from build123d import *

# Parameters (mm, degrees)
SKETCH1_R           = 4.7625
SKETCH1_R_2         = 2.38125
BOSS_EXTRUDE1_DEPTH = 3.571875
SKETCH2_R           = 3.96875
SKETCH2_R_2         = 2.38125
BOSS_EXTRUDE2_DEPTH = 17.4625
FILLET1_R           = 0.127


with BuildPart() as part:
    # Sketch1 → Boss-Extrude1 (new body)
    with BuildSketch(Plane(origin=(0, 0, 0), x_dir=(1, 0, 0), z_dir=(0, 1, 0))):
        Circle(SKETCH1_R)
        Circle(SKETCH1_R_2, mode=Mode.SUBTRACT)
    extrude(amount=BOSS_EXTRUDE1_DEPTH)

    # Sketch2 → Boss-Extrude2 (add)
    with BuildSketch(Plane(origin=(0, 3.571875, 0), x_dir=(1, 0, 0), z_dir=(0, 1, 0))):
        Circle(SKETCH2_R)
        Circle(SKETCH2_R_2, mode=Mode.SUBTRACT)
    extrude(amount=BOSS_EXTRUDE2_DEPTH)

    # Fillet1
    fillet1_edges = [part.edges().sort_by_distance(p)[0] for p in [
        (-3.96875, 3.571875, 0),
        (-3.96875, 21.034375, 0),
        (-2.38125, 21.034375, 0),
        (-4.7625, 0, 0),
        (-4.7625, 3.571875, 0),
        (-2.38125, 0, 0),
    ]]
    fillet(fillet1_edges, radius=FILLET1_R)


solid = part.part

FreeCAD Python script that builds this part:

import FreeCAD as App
import Part
import Sketcher
Q = App.Units.Quantity


def edges_at(feature, points):
    """Names of the edges that pass closest to the given points."""
    edges = feature.Shape.Edges
    near = lambda p: min(range(len(edges)), key=lambda i: edges[i].distToShape(Part.Vertex(*p))[0])
    return sorted({f"Edge{near(p) + 1}" for p in points})

doc = App.newDocument("Part")
body = doc.addObject("PartDesign::Body", "Body")

# Sketch on XZ plane
sketch1 = doc.addObject("Sketcher::SketchObject", "Sketch")
body.addObject(sketch1)
sketch1.AttachmentSupport = (doc.XZ_Plane, [""])
sketch1.MapMode = "FlatFace"
sketch1.addGeometry([
    Part.Circle(App.Vector(0, 0, 0), App.Vector(0, 0, 1), 4.8),
    Part.Circle(App.Vector(0, 0, 0), App.Vector(0, 0, 1), 2.4),
], False)
sketch1.addConstraint([
    Sketcher.Constraint("Coincident", 0, 3, -1, 1),
    Sketcher.Constraint("Coincident", 1, 3, -1, 1),
    Sketcher.Constraint("Diameter", 0, Q("0.375 in")),
    Sketcher.Constraint("Diameter", 1, Q("0.1875 in")),
])
pad1 = doc.addObject("PartDesign::Pad", "Pad")
body.addObject(pad1)
pad1.Profile = sketch1
pad1.Length = Q("0.140625 in")
pad1.Reversed = True

# Sketch on XZ plane
sketch2 = doc.addObject("Sketcher::SketchObject", "Sketch001")
body.addObject(sketch2)
sketch2.AttachmentSupport = (doc.XZ_Plane, [""])
sketch2.MapMode = "FlatFace"
sketch2.AttachmentOffset = App.Placement(App.Vector(0, 0, -0.140625 * 25.4), App.Rotation())
sketch2.addGeometry([
    Part.Circle(App.Vector(0, 0, 0), App.Vector(0, 0, 1), 4),
    Part.Circle(App.Vector(0, 0, 0), App.Vector(0, 0, 1), 2.4),
], False)
sketch2.addConstraint([
    Sketcher.Constraint("Coincident", 0, 3, -1, 1),
    Sketcher.Constraint("Coincident", 1, 3, -1, 1),
    Sketcher.Constraint("Diameter", 0, Q("0.3125 in")),
    Sketcher.Constraint("Diameter", 1, Q("0.1875 in")),
])
pad2 = doc.addObject("PartDesign::Pad", "Pad001")
body.addObject(pad2)
pad2.Profile = sketch2
pad2.Length = Q("0.6875 in")
pad2.Reversed = True
doc.recompute()

fillet = doc.addObject("PartDesign::Fillet", "Fillet")
body.addObject(fillet)
fillet.Base = (pad2, edges_at(pad2, [
    (-3.969, 3.572, 0),
    (-3.969, 21.034, 0),
    (-2.381, 21.034, 0),
    (-4.763, 0, 0),
    (-4.763, 3.572, 0),
    (-2.381, 0, 0),
]))
fillet.Radius = Q("0.005 in")

doc.recompute()
